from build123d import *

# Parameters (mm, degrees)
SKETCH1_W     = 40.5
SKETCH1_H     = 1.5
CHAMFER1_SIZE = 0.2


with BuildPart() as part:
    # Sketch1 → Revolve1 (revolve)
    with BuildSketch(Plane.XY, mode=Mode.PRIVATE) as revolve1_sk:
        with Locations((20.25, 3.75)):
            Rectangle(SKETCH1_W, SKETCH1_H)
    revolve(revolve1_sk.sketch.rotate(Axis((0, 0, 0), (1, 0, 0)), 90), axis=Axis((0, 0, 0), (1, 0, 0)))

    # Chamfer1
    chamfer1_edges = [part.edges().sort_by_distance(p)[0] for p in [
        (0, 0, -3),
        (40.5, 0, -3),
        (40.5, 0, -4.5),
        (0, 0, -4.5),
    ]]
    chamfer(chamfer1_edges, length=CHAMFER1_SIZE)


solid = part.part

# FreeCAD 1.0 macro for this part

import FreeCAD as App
import Part
import Sketcher
from FreeCAD import Vector
Q = App.Units.Quantity


def edges_at(feature, points):
    """Names of the edges that pass closest to the given points."""
    edges = feature.Shape.Edges
    near = lambda p: min(range(len(edges)), key=lambda i: edges[i].distToShape(Part.Vertex(*p))[0])
    return sorted({f"Edge{near(p) + 1}" for p in points})


def add_polygon(sketch, points):
    """Adds a closed chain of lines whose ends are joined by coincident constraints."""
    first, n = sketch.GeometryCount, len(points)
    for a, b in zip(points, points[1:] + points[:1]):
        sketch.addGeometry(Part.LineSegment(App.Vector(*a, 0), App.Vector(*b, 0)), False)
    for i in range(n):
        sketch.addConstraint(Sketcher.Constraint("Coincident", first + i, 2, first + (i + 1) % n, 1))

doc = App.newDocument("Part")
body = doc.addObject("PartDesign::Body", "Body")

# Sketch on XY plane
sketch1 = body.newObject("Sketcher::SketchObject", "Sketch")
sketch1.AttachmentSupport = (doc.getObject("XY_Plane"), [""])
sketch1.MapMode = "FlatFace"
add_polygon(sketch1, [(0, 4.5), (0, 3), (40.5, 3), (40.5, 4.5)])  # lines 0-3
sketch1.addConstraint(Sketcher.Constraint("Vertical", 0))
sketch1.addConstraint(Sketcher.Constraint("Horizontal", 1))
sketch1.addConstraint(Sketcher.Constraint("Vertical", 2))
sketch1.addConstraint(Sketcher.Constraint("Horizontal", 3))
sketch1.addConstraint(Sketcher.Constraint("PointOnObject", 0, 2, -2))
sketch1.addConstraint(Sketcher.Constraint("DistanceX", 1, 1, 1, 2, Q("40.5 mm")))
sketch1.addConstraint(Sketcher.Constraint("DistanceY", 0, 2, 0, 1, Q("1.5 mm")))
sketch1.addConstraint(Sketcher.Constraint("DistanceY", -1, 1, 0, 2, Q("3 mm")))
revolution = body.newObject("PartDesign::Revolution", "Revolution")
revolution.Profile = sketch1
revolution.ReferenceAxis = (sketch1, ["H_Axis"])
revolution.Angle = 360
doc.recompute()

chamfer = body.newObject("PartDesign::Chamfer", "Chamfer")
chamfer.Base = (revolution, edges_at(revolution, [
    (0, 0, -3),
    (40.5, 0, -3),
    (40.5, 0, -4.5),
    (0, 0, -4.5),
]))
chamfer.Size = 0.2

doc.recompute()
